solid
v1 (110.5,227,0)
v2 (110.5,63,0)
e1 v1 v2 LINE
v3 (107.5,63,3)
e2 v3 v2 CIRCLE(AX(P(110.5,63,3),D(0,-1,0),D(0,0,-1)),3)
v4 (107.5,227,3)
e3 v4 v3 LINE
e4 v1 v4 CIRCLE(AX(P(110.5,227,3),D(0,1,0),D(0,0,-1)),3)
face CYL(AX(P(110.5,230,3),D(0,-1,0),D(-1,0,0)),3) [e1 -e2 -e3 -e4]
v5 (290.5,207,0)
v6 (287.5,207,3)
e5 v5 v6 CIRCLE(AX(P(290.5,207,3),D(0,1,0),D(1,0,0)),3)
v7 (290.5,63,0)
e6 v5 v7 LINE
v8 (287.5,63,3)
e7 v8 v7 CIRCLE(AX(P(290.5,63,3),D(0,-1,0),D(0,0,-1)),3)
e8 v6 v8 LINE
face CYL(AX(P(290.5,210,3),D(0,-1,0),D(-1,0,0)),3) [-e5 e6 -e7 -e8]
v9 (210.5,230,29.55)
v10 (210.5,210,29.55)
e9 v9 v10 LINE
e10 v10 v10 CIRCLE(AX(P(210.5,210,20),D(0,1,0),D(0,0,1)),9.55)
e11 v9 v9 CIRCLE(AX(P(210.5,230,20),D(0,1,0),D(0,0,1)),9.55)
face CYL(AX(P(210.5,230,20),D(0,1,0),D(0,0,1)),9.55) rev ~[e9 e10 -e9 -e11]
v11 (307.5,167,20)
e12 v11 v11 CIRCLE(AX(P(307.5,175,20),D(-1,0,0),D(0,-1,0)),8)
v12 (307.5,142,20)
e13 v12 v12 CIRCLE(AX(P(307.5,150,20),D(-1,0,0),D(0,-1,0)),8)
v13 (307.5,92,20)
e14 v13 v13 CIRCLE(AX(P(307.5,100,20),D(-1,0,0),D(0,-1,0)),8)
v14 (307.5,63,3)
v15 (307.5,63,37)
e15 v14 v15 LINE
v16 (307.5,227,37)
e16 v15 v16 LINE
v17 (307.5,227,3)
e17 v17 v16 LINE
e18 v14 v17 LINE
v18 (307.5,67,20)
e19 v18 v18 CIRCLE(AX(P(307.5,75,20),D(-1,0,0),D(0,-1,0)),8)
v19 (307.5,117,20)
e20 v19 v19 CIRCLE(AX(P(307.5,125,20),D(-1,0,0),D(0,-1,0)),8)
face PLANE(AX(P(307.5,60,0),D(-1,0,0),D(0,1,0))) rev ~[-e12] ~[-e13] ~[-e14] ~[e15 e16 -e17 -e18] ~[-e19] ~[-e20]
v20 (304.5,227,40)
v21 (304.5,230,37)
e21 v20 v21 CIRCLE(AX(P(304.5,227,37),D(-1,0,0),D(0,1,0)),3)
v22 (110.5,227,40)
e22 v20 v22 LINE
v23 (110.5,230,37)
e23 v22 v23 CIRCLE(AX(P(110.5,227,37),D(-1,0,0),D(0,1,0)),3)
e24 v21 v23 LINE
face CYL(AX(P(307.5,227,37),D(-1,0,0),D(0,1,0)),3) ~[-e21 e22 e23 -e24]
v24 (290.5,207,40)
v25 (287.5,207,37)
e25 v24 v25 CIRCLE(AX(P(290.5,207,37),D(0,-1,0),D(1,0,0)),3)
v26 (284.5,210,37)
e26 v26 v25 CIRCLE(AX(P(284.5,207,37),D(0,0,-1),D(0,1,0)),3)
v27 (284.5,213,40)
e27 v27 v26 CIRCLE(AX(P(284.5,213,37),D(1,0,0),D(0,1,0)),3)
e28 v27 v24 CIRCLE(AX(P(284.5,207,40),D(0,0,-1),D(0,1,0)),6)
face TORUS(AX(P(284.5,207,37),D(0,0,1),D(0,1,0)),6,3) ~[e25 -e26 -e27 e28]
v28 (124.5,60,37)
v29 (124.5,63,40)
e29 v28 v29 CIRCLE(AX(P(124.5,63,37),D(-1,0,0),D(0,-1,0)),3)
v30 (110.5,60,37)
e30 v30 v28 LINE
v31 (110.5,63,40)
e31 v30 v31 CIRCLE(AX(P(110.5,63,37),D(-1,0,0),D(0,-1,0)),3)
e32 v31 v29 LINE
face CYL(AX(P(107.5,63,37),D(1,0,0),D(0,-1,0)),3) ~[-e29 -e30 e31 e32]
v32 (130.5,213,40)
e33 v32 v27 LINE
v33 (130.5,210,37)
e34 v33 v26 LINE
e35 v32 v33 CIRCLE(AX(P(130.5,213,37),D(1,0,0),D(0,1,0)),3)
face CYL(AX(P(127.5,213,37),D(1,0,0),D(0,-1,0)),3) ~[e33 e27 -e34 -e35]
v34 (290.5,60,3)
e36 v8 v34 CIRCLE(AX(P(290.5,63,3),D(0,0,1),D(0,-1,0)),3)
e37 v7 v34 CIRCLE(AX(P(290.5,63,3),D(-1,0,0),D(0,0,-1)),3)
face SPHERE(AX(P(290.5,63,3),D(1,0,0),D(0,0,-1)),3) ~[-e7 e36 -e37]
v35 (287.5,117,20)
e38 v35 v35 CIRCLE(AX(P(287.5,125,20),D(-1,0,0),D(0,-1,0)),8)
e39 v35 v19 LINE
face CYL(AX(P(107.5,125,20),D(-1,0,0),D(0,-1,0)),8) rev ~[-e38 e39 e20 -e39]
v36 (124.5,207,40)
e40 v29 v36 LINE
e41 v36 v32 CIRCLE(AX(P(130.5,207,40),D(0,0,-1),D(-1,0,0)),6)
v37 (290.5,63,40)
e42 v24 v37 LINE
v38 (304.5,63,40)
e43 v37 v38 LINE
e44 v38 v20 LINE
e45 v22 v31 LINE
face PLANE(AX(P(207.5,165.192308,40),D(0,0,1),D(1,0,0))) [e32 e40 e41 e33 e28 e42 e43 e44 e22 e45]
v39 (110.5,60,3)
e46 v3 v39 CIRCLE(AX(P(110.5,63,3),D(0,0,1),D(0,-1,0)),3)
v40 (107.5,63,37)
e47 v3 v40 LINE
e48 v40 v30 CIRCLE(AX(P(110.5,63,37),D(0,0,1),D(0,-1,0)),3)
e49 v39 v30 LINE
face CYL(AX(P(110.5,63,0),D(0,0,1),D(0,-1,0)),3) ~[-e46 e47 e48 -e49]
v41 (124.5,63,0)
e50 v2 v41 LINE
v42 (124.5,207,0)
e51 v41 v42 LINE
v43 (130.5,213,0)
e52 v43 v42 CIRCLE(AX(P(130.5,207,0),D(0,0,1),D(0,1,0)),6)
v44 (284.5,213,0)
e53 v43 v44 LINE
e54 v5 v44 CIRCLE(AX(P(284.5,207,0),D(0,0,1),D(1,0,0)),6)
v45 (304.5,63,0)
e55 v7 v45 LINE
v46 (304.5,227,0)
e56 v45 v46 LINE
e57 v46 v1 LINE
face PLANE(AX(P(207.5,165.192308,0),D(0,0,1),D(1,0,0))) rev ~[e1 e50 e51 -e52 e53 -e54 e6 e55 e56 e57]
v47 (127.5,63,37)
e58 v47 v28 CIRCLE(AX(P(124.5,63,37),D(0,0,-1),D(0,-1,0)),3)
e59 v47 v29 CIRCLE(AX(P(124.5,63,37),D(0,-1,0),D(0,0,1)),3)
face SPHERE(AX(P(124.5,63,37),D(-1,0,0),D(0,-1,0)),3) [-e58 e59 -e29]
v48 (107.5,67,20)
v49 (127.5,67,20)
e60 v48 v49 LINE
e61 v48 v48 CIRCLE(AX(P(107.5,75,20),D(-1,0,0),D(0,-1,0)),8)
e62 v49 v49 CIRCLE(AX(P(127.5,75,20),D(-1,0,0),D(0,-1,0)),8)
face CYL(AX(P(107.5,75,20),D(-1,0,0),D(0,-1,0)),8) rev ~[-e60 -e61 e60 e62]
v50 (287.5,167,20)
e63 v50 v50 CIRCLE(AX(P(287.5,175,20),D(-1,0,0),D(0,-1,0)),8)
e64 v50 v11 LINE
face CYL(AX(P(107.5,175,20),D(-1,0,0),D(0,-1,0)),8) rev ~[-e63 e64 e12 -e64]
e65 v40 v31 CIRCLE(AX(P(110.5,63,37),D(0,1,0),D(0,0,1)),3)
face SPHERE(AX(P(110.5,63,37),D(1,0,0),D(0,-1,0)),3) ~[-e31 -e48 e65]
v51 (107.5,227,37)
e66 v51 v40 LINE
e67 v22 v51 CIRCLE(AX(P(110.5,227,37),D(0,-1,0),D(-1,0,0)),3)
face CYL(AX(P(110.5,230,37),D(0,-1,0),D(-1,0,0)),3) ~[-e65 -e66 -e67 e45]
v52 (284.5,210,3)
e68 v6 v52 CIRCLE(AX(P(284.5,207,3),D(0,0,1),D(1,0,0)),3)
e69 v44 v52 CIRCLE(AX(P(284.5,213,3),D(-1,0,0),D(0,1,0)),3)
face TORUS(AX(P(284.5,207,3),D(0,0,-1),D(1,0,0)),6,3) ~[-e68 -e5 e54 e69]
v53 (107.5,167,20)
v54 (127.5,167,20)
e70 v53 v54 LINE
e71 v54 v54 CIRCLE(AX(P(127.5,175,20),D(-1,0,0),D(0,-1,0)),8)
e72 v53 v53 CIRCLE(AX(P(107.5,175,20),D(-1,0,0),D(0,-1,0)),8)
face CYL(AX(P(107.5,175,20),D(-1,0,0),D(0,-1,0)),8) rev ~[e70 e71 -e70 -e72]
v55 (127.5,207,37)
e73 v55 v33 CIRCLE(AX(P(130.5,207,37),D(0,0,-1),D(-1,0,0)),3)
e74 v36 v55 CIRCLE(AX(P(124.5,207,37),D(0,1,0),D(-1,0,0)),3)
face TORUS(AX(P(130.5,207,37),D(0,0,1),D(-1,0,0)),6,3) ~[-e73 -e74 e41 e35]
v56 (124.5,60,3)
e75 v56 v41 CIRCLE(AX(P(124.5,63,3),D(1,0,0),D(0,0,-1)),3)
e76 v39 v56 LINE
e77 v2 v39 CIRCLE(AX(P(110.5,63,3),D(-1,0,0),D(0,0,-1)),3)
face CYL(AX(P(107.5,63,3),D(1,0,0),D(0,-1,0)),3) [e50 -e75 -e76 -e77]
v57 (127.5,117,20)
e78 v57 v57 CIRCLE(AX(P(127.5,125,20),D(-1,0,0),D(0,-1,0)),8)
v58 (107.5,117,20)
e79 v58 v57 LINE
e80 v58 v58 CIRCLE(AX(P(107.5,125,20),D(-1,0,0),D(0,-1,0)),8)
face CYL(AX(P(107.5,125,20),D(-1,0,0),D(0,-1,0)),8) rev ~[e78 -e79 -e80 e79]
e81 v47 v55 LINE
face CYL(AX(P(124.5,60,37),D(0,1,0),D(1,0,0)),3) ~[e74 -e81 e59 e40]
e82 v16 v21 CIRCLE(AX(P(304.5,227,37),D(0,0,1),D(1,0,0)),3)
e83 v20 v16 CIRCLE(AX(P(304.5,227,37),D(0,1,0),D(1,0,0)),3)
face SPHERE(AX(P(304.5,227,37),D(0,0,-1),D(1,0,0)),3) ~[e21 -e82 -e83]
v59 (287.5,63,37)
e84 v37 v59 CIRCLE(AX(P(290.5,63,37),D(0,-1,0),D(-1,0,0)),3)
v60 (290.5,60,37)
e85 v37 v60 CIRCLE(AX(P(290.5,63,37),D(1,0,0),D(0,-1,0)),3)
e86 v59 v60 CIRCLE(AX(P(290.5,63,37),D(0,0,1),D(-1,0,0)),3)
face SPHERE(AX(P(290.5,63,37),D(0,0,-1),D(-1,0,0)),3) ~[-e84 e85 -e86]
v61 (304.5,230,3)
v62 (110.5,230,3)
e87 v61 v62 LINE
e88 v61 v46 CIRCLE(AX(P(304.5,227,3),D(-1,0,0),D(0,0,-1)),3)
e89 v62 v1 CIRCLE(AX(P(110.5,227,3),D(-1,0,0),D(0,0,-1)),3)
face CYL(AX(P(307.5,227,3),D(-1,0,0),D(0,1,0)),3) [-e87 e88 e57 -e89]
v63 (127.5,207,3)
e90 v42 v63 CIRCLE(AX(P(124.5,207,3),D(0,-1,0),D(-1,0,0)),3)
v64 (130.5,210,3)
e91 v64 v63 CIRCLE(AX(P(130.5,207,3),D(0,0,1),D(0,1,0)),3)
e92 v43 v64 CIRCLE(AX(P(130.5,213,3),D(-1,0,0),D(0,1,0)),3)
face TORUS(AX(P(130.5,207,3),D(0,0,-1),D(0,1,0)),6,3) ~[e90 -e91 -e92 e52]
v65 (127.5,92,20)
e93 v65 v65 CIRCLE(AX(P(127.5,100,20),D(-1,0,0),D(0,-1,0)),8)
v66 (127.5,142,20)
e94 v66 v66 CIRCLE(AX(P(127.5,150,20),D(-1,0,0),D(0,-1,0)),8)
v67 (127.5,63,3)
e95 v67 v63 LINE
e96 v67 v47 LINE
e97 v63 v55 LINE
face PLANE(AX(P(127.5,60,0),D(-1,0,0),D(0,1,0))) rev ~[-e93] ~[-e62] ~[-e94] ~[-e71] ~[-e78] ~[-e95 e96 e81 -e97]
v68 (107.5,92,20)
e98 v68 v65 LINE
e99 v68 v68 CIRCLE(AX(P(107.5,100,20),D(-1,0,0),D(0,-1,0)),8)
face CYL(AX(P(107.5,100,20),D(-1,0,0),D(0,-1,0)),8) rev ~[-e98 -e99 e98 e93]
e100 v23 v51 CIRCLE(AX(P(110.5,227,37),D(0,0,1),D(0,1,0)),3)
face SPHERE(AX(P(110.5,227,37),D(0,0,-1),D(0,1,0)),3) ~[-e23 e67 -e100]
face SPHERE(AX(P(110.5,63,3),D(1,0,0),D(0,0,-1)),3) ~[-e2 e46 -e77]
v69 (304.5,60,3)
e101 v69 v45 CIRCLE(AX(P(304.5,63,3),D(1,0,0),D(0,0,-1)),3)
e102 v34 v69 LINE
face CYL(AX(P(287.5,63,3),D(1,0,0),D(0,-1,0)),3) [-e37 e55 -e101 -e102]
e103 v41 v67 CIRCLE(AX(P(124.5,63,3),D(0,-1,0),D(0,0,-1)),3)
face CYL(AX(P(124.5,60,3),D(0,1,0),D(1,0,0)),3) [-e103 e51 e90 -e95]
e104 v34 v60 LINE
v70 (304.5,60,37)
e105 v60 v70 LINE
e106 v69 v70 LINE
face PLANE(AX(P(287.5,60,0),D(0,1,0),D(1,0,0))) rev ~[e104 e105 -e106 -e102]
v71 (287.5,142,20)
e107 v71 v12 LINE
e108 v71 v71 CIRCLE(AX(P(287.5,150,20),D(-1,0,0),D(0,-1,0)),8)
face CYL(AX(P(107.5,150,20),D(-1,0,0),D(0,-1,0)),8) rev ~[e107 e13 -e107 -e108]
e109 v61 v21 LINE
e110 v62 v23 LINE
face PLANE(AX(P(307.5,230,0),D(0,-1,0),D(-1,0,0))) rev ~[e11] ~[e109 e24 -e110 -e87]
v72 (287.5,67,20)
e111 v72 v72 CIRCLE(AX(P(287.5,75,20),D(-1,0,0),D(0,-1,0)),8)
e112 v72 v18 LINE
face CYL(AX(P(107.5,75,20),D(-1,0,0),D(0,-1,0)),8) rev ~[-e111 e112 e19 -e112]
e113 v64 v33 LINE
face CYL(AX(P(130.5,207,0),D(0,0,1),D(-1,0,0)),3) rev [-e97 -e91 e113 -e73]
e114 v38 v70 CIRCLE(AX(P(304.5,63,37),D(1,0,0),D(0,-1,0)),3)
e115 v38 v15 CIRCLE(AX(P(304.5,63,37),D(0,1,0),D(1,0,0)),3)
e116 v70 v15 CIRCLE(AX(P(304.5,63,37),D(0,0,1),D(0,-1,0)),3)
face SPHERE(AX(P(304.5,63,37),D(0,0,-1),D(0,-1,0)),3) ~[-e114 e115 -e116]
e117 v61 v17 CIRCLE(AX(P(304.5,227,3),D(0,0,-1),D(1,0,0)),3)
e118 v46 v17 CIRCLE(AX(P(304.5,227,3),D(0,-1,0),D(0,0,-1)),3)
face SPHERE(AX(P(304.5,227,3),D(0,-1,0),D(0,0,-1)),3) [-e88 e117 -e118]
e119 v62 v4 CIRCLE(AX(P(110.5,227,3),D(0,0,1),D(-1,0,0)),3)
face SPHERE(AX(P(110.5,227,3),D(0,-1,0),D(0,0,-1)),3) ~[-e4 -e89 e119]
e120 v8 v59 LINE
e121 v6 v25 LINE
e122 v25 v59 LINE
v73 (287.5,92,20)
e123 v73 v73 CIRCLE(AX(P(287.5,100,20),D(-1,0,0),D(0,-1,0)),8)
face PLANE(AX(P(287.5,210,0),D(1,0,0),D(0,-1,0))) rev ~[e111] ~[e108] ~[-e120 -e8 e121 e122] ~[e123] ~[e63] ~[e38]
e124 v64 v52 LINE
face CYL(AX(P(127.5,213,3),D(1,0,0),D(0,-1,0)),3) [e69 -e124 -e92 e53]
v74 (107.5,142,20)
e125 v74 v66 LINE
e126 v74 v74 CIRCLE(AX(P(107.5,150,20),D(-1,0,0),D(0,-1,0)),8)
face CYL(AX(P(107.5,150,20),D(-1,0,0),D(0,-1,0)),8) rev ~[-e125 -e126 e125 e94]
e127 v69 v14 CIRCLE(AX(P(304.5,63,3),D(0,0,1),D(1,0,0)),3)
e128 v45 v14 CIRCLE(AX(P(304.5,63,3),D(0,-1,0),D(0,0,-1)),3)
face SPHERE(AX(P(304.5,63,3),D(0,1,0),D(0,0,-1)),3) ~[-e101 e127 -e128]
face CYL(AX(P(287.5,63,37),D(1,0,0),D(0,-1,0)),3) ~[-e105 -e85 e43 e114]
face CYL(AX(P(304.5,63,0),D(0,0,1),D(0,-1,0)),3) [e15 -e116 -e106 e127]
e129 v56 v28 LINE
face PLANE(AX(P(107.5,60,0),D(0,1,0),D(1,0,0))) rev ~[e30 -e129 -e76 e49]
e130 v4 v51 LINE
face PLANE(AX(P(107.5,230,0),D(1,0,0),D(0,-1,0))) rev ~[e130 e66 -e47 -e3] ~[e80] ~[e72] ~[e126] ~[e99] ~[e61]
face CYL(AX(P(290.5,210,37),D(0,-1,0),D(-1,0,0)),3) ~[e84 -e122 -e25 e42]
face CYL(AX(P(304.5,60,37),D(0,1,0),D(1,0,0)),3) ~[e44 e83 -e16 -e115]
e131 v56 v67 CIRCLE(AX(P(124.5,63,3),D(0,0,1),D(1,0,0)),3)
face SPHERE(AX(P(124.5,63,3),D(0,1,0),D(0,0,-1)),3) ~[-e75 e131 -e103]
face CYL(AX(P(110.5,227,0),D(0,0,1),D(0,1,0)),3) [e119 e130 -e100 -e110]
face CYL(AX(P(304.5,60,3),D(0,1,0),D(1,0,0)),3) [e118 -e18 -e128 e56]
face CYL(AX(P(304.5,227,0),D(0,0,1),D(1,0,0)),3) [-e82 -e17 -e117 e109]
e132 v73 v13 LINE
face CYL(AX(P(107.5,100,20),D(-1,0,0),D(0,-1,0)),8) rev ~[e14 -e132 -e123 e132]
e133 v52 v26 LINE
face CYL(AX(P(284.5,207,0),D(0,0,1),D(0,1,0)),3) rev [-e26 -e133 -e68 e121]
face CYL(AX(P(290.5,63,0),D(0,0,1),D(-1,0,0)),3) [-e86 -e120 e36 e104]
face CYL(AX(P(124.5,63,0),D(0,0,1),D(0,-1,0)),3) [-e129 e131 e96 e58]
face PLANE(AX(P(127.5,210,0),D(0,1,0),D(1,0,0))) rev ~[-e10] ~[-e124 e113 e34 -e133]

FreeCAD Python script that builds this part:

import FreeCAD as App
import Part
import Sketcher
from FreeCAD import Vector
Q = App.Units.Quantity

doc = App.newDocument("Part")
body = doc.addObject("PartDesign::Body", "Body")

# Sketch on XY plane
sketch1 = doc.addObject("Sketcher::SketchObject", "Sketch")
body.addObject(sketch1)
sketch1.AttachmentSupport = (doc.XY_Plane, [""])
sketch1.MapMode = "FlatFace"
sketch1.addGeometry(Part.LineSegment(Vector(108, 60, 0), Vector(128, 60, 0)), False)
sketch1.addGeometry(Part.LineSegment(Vector(128, 60, 0), Vector(128, 210, 0)), False)
sketch1.addGeometry(Part.LineSegment(Vector(128, 210, 0), Vector(288, 210, 0)), False)
sketch1.addGeometry(Part.LineSegment(Vector(288, 210, 0), Vector(288, 60, 0)), False)
sketch1.addGeometry(Part.LineSegment(Vector(288, 60, 0), Vector(308, 60, 0)), False)
sketch1.addGeometry(Part.LineSegment(Vector(308, 60, 0), Vector(308, 230, 0)), False)
sketch1.addGeometry(Part.LineSegment(Vector(308, 230, 0), Vector(108, 230, 0)), False)
sketch1.addGeometry(Part.LineSegment(Vector(108, 230, 0), Vector(108, 60, 0)), False)
sketch1.addConstraint(Sketcher.Constraint("Coincident", 0, 2, 1, 1))
sketch1.addConstraint(Sketcher.Constraint("Coincident", 1, 2, 2, 1))
sketch1.addConstraint(Sketcher.Constraint("Coincident", 2, 2, 3, 1))
sketch1.addConstraint(Sketcher.Constraint("Coincident", 3, 2, 4, 1))
sketch1.addConstraint(Sketcher.Constraint("Coincident", 4, 2, 5, 1))
sketch1.addConstraint(Sketcher.Constraint("Coincident", 5, 2, 6, 1))
sketch1.addConstraint(Sketcher.Constraint("Coincident", 6, 2, 7, 1))
sketch1.addConstraint(Sketcher.Constraint("Coincident", 7, 2, 0, 1))
sketch1.addConstraint(Sketcher.Constraint("Horizontal", 0))
sketch1.addConstraint(Sketcher.Constraint("Vertical", 1))
sketch1.addConstraint(Sketcher.Constraint("Horizontal", 2))
sketch1.addConstraint(Sketcher.Constraint("Vertical", 3))
sketch1.addConstraint(Sketcher.Constraint("Horizontal", 4))
sketch1.addConstraint(Sketcher.Constraint("Vertical", 5))
sketch1.addConstraint(Sketcher.Constraint("Horizontal", 6))
sketch1.addConstraint(Sketcher.Constraint("Vertical", 7))
sketch1.addConstraint(Sketcher.Constraint("Horizontal", 0, 2, 3, 2))
sketch1.addConstraint(Sketcher.Constraint("Equal", 0, 4))
sketch1.addConstraint(Sketcher.Constraint("DistanceX", 0, 1, 0, 2, Q("20 mm")))
sketch1.addConstraint(Sketcher.Constraint("DistanceX", 2, 1, 2, 2, Q("160 mm")))
sketch1.addConstraint(Sketcher.Constraint("DistanceY", 1, 1, 1, 2, Q("150 mm")))
sketch1.addConstraint(Sketcher.Constraint("DistanceY", 5, 1, 5, 2, Q("170 mm")))
sketch1.addConstraint(Sketcher.Constraint("DistanceY", -1, 1, 0, 2, Q("60 mm")))
sketch1.addConstraint(Sketcher.Constraint("DistanceX", -1, 1, 0, 2, Q("127.5 mm")))
pad1 = doc.addObject("PartDesign::Pad", "Pad")
body.addObject(pad1)
pad1.Profile = sketch1
pad1.Length = 40
doc.recompute()

fillet = doc.addObject("PartDesign::Fillet", "Fillet")
body.addObject(fillet)
fillet.Base = (pad1, ["Edge1"])
fillet.UseAllEdges = True
fillet.Radius = 3

# Sketch on XZ plane
sketch2 = doc.addObject("Sketcher::SketchObject", "Sketch001")
body.addObject(sketch2)
sketch2.AttachmentSupport = (doc.XZ_Plane, [""])
sketch2.MapMode = "FlatFace"
sketch2.AttachmentOffset = App.Placement(Vector(0, 0, -230), App.Rotation())
sketch2.addGeometry(Part.Circle(Vector(210, 20, 0), Vector(0, 0, 1), 10), False)
sketch2.addConstraint(Sketcher.Constraint("Diameter", 0, Q("19.1 mm")))
sketch2.addConstraint(Sketcher.Constraint("DistanceY", -1, 1, 0, 3, Q("20 mm")))
sketch2.addConstraint(Sketcher.Constraint("DistanceX", -1, 1, 0, 3, Q("210.5 mm")))
pocket1 = doc.addObject("PartDesign::Pocket", "Pocket")
body.addObject(pocket1)
pocket1.Profile = sketch2
pocket1.Length = 20
pocket1.Reversed = True

# Sketch on YZ plane
sketch3 = doc.addObject("Sketcher::SketchObject", "Sketch002")
body.addObject(sketch3)
sketch3.AttachmentSupport = (doc.YZ_Plane, [""])
sketch3.MapMode = "FlatFace"
sketch3.AttachmentOffset = App.Placement(Vector(0, 0, 107.5), App.Rotation())
sketch3.addGeometry(Part.Circle(Vector(75, 20, 0), Vector(0, 0, 1), 8), False)
sketch3.addConstraint(Sketcher.Constraint("Diameter", 0, Q("16 mm")))
sketch3.addConstraint(Sketcher.Constraint("DistanceX", -1, 1, 0, 3, Q("75 mm")))
sketch3.addConstraint(Sketcher.Constraint("DistanceY", -1, 1, 0, 3, Q("20 mm")))
pocket2 = doc.addObject("PartDesign::Pocket", "Pocket001")
body.addObject(pocket2)
pocket2.Profile = sketch3
pocket2.Length = 200
pocket2.Reversed = True
doc.recompute()

linearpattern = doc.addObject("PartDesign::LinearPattern", "LinearPattern")
body.addObject(linearpattern)
linearpattern.Originals = [pocket2]
linearpattern.Direction = (doc.Y_Axis, [""])
linearpattern.Mode = "offset"
linearpattern.Offset = 25
linearpattern.Occurrences = 5
body.Tip = linearpattern

doc.recompute()
